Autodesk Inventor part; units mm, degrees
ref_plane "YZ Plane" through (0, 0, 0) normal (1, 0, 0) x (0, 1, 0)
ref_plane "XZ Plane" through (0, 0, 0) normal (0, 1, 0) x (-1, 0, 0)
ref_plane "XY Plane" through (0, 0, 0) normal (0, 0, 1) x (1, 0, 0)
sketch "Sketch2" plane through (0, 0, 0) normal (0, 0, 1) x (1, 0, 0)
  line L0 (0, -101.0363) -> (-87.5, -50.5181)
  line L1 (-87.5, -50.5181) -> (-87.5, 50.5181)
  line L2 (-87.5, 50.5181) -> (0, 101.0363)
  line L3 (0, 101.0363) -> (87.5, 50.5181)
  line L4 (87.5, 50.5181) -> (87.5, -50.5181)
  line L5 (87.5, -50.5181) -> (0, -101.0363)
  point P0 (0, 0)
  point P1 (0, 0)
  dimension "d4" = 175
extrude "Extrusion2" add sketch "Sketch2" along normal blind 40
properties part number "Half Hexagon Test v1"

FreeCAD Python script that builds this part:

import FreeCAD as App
import Part
import Sketcher
from FreeCAD import Vector
Q = App.Units.Quantity


def add_polygon(sketch, points):
    """Adds a closed chain of lines whose ends are joined by coincident constraints."""
    first, n = sketch.GeometryCount, len(points)
    for a, b in zip(points, points[1:] + points[:1]):
        sketch.addGeometry(Part.LineSegment(App.Vector(*a, 0), App.Vector(*b, 0)), False)
    for i in range(n):
        sketch.addConstraint(Sketcher.Constraint("Coincident", first + i, 2, first + (i + 1) % n, 1))

doc = App.newDocument("Part")
body = doc.addObject("PartDesign::Body", "Body")

sketch1 = body.newObject("Sketcher::SketchObject", "Sketch")
sketch1.AttachmentSupport = (doc.getObject("XY_Plane"), [""])
sketch1.MapMode = "FlatFace"
add_polygon(sketch1, [(-88, -51), (0, -101), (88, -51), (88, 51), (0, 101), (-88, 51)])
sketch1.addConstraint(Sketcher.Constraint("Vertical", 2))
sketch1.addConstraint(Sketcher.Constraint("Vertical", 5))
sketch1.addConstraint(Sketcher.Constraint("Symmetric", 0, 2, 3, 2, -1, 1))
sketch1.addConstraint(Sketcher.Constraint("Symmetric", 1, 2, 4, 2, -1, 1))
sketch1.addConstraint(Sketcher.Constraint("PointOnObject", 0, 2, -2))
sketch1.addConstraint(Sketcher.Constraint("Parallel", 0, 3))
sketch1.addConstraint(Sketcher.Constraint("Horizontal", 2, 2, 4, 2))
sketch1.addConstraint(Sketcher.Constraint("DistanceX", 4, 2, 2, 2, 175.0))
sketch1.addConstraint(Sketcher.Constraint("Angle", 0, Q("-30 deg")))
sketch1.addConstraint(Sketcher.Constraint("DistanceY", 2, 1, 2, 2, 101.0362))
pad1 = body.newObject("PartDesign::Pad", "Pad")
pad1.Profile = sketch1
pad1.Length = 40

doc.recompute()
